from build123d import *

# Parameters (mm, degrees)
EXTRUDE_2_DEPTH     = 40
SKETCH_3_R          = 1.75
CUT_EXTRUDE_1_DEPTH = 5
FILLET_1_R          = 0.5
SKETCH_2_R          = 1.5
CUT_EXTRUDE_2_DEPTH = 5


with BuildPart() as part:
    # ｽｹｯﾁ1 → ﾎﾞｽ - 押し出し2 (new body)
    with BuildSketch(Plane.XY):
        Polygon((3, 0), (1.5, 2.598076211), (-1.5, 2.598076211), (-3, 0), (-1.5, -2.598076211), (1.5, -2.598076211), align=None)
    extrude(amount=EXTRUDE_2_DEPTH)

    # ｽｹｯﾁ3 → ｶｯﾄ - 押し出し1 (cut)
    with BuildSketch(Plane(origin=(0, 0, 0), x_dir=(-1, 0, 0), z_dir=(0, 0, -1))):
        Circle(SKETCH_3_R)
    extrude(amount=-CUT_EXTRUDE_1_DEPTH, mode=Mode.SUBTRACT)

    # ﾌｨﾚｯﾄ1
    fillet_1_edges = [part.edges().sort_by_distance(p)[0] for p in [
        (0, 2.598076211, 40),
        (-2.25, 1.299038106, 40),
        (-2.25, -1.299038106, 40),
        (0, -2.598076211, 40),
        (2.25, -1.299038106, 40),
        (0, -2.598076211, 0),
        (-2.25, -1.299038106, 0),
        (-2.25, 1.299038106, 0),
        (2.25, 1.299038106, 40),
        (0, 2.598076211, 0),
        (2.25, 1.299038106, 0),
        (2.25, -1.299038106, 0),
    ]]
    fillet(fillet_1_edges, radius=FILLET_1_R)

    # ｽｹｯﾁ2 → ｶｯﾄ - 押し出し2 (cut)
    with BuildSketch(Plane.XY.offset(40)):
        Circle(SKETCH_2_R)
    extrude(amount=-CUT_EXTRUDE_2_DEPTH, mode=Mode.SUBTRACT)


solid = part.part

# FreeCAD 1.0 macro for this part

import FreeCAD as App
import Part
import Sketcher

V = App.Vector
Q = App.Units.Quantity


def edges_at(feature, points):
    """Names of the edges that pass closest to the given points."""
    edges = feature.Shape.Edges
    near = lambda p: min(range(len(edges)), key=lambda i: edges[i].distToShape(Part.Vertex(*p))[0])
    return sorted({f"Edge{near(p) + 1}" for p in points})


def add_polygon(sketch, points):
    """Adds a closed chain of lines whose ends are joined by coincident constraints."""
    first, n = sketch.GeometryCount, len(points)
    for a, b in zip(points, points[1:] + points[:1]):
        sketch.addGeometry(Part.LineSegment(App.Vector(*a, 0), App.Vector(*b, 0)), False)
    for i in range(n):
        sketch.addConstraint(Sketcher.Constraint("Coincident", first + i, 2, first + (i + 1) % n, 1))

doc = App.newDocument("Part")
params = doc.addObject("Spreadsheet::Sheet", "Params")
for row, (alias, value) in enumerate([
    ("sketch1_width", "3 mm"),
    ("sketch1_length", "3 mm"),
    ("pad1_length", "40 mm"),
    ("sketch2_diameter", "3.5 mm"),
    ("pocket1_length", "5 mm"),
    ("fillet_radius", "0.5 mm"),
    ("sketch3_diameter", "3 mm"),
    ("pocket2_length", "5 mm"),
], start=1):
    params.set(f"A{row}", alias)
    params.set(f"B{row}", "=" + value)
    params.setAlias(f"B{row}", alias)

body = doc.addObject("PartDesign::Body", "Body")

# Sketch on XY plane
sketch1 = body.newObject("Sketcher::SketchObject", "Sketch")
sketch1.AttachmentSupport = (doc.getObject("XY_Plane"), [""])
sketch1.MapMode = "FlatFace"
add_polygon(sketch1, [(3, 0), (1.5, 2.6), (-1.5, 2.6), (-3, 0), (-1.5, -2.6), (1.5, -2.6)])  # lines 0-5
sketch1.addConstraint([
    Sketcher.Constraint("Horizontal", 1),
    Sketcher.Constraint("Horizontal", 4),
    Sketcher.Constraint("Symmetric", 0, 2, 3, 2, -1, 1),
    Sketcher.Constraint("Symmetric", 2, 2, 5, 2, -1, 1),
    Sketcher.Constraint("PointOnObject", 2, 2, -1),
    Sketcher.Constraint("Parallel", 2, 5),
    Sketcher.Constraint("Vertical", 1, 2, 3, 2),
    Sketcher.Constraint("DistanceX", 1, 2, 1, 1, 3.0),
    Sketcher.Constraint("Angle", 0, Q("120 deg")),
    Sketcher.Constraint("Distance", 0, 3.0),
])
sketch1.setExpression("Constraints[13]", "Params.sketch1_width")
sketch1.setExpression("Constraints[15]", "Params.sketch1_length")
pad1 = body.newObject("PartDesign::Pad", "Pad")
pad1.Profile = sketch1
pad1.setExpression("Length", "Params.pad1_length")

# Sketch on XY plane
sketch2 = body.newObject("Sketcher::SketchObject", "Sketch001")
sketch2.AttachmentSupport = (doc.getObject("XY_Plane"), [""])
sketch2.MapMode = "FlatFace"
sketch2.addGeometry(Part.Circle(V(0, 0, 0), V(0, 0, 1), 1.8), False)
sketch2.addConstraint([
    Sketcher.Constraint("Coincident", 0, 3, -1, 1),
    Sketcher.Constraint("Diameter", 0, 3.5),
])
sketch2.setExpression("Constraints[1]", "Params.sketch2_diameter")
pocket1 = body.newObject("PartDesign::Pocket", "Pocket")
pocket1.Profile = sketch2
pocket1.setExpression("Length", "Params.pocket1_length")
pocket1.Reversed = True
doc.recompute()

fillet = body.newObject("PartDesign::Fillet", "Fillet")
fillet.Base = (pocket1, edges_at(pocket1, [
    (0, 2.598, 40),
    (-2.25, 1.299, 40),
    (-2.25, -1.299, 40),
    (0, -2.598, 40),
    (2.25, -1.299, 40),
    (0, -2.598, 0),
    (-2.25, -1.299, 0),
    (-2.25, 1.299, 0),
    (2.25, 1.299, 40),
    (0, 2.598, 0),
    (2.25, 1.299, 0),
    (2.25, -1.299, 0),
]))
fillet.setExpression("Radius", "Params.fillet_radius")

# Sketch on XY plane
sketch3 = body.newObject("Sketcher::SketchObject", "Sketch002")
sketch3.AttachmentSupport = (doc.getObject("XY_Plane"), [""])
sketch3.MapMode = "FlatFace"
sketch3.AttachmentOffset = App.Placement(V(0, 0, 40), App.Rotation())
sketch3.addGeometry(Part.Circle(V(0, 0, 0), V(0, 0, 1), 1.5), False)
sketch3.addConstraint([
    Sketcher.Constraint("Coincident", 0, 3, -1, 1),
    Sketcher.Constraint("Diameter", 0, 3.0),
])
sketch3.setExpression("Constraints[1]", "Params.sketch3_diameter")
pocket2 = body.newObject("PartDesign::Pocket", "Pocket001")
pocket2.Profile = sketch3
pocket2.setExpression("Length", "Params.pocket2_length")

doc.recompute()
